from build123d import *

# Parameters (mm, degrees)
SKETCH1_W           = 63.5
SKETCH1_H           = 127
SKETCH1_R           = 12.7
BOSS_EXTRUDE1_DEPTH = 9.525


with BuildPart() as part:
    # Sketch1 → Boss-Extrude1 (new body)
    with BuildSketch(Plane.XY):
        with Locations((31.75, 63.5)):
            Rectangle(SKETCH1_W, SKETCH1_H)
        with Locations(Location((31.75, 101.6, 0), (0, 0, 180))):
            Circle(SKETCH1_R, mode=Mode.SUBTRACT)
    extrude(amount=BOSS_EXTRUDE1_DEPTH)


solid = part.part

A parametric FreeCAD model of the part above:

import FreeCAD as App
import Part
import Sketcher
from FreeCAD import Vector
Q = App.Units.Quantity

doc = App.newDocument("Part")
body = doc.addObject("PartDesign::Body", "Body")

# Sketch on XY plane
sketch1 = body.newObject("Sketcher::SketchObject", "Sketch")
sketch1.AttachmentSupport = (doc.getObject("XY_Plane"), [""])
sketch1.MapMode = "FlatFace"
sketch1.addGeometry([
    Part.LineSegment(Vector(0, 127, 0), Vector(0, 0, 0)),  # 0
    Part.LineSegment(Vector(0, 0, 0), Vector(64, 0, 0)),  # 1
    Part.LineSegment(Vector(64, 0, 0), Vector(64, 127, 0)),  # 2
    Part.LineSegment(Vector(64, 127, 0), Vector(0, 127, 0)),  # 3
    Part.Circle(Vector(32, 102, 0), Vector(0, 0, 1), 13),  # 4
], False)
sketch1.addConstraint([
    Sketcher.Constraint("Coincident", 0, 2, 1, 1),
    Sketcher.Constraint("Coincident", 1, 2, 2, 1),
    Sketcher.Constraint("Coincident", 2, 2, 3, 1),
    Sketcher.Constraint("Coincident", 3, 2, 0, 1),
    Sketcher.Constraint("Vertical", 0),
    Sketcher.Constraint("Horizontal", 1),
    Sketcher.Constraint("Vertical", 2),
    Sketcher.Constraint("Horizontal", 3),
    Sketcher.Constraint("Coincident", 0, 2, -1, 1),
    Sketcher.Constraint("Diameter", 4, Q("1 in")),
    Sketcher.Constraint("DistanceY", 0, 2, 0, 1, Q("5 in")),
    Sketcher.Constraint("DistanceX", 1, 1, 1, 2, Q("2.5 in")),
    Sketcher.Constraint("DistanceY", -1, 1, 4, 3, Q("4 in")),
    Sketcher.Constraint("DistanceX", -1, 1, 4, 3, Q("1.25 in")),
])
pad1 = body.newObject("PartDesign::Pad", "Pad")
pad1.Profile = sketch1
pad1.Length = Q("0.375 in")

doc.recompute()
